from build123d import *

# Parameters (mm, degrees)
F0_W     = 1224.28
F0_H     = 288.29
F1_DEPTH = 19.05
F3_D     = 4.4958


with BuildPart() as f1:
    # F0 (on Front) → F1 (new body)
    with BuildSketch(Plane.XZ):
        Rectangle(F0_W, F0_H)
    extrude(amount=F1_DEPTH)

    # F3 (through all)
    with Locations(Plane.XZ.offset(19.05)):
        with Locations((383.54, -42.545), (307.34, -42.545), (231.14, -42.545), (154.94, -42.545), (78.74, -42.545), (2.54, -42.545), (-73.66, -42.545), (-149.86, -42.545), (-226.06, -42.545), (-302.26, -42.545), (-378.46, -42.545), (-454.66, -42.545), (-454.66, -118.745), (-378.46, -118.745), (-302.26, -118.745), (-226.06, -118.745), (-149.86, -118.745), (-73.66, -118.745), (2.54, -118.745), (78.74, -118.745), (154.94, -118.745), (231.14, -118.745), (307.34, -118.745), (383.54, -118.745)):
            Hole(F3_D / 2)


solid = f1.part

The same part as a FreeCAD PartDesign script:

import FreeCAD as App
import Part
import Sketcher
from FreeCAD import Vector
Q = App.Units.Quantity


def add_polygon(sketch, points):
    """Adds a closed chain of lines whose ends are joined by coincident constraints."""
    first, n = sketch.GeometryCount, len(points)
    for a, b in zip(points, points[1:] + points[:1]):
        sketch.addGeometry(Part.LineSegment(App.Vector(*a, 0), App.Vector(*b, 0)), False)
    for i in range(n):
        sketch.addConstraint(Sketcher.Constraint("Coincident", first + i, 2, first + (i + 1) % n, 1))

doc = App.newDocument("Part")
body = doc.addObject("PartDesign::Body", "Body")

# Sketch on XZ plane
sketch1 = body.newObject("Sketcher::SketchObject", "Sketch")
sketch1.AttachmentSupport = (doc.getObject("XZ_Plane"), [""])
sketch1.MapMode = "FlatFace"
add_polygon(sketch1, [(-612, 144), (-612, -144), (612, -144), (612, 144)])  # lines 0-3
sketch1.addConstraint(Sketcher.Constraint("Vertical", 0))
sketch1.addConstraint(Sketcher.Constraint("Horizontal", 1))
sketch1.addConstraint(Sketcher.Constraint("Vertical", 2))
sketch1.addConstraint(Sketcher.Constraint("Horizontal", 3))
sketch1.addConstraint(Sketcher.Constraint("Symmetric", 0, 2, 2, 2, -1, 1))
sketch1.addConstraint(Sketcher.Constraint("DistanceX", 1, 1, 1, 2, Q("48.2 in")))
sketch1.addConstraint(Sketcher.Constraint("DistanceY", 0, 2, 0, 1, Q("11.35 in")))
pad1 = body.newObject("PartDesign::Pad", "Pad")
pad1.Profile = sketch1
pad1.Length = Q("0.75 in")

# Sketch on XZ plane
sketch2 = body.newObject("Sketcher::SketchObject", "Sketch001")
sketch2.AttachmentSupport = (doc.getObject("XZ_Plane"), [""])
sketch2.MapMode = "FlatFace"
sketch2.AttachmentOffset = App.Placement(Vector(0, 0, 0.75 * 25.4), App.Rotation())
sketch2.addGeometry(Part.Circle(Vector(383.5, -42.5, 0), Vector(0, 0, 1), 2.2), False)
sketch2.addGeometry(Part.Circle(Vector(307.3, -42.5, 0), Vector(0, 0, 1), 2.2), False)
sketch2.addGeometry(Part.Circle(Vector(231.1, -42.5, 0), Vector(0, 0, 1), 2.2), False)
sketch2.addGeometry(Part.Circle(Vector(154.9, -42.5, 0), Vector(0, 0, 1), 2.2), False)
sketch2.addGeometry(Part.Circle(Vector(78.7, -42.5, 0), Vector(0, 0, 1), 2.2), False)
sketch2.addGeometry(Part.Circle(Vector(2.5, -42.5, 0), Vector(0, 0, 1), 2.2), False)
sketch2.addGeometry(Part.Circle(Vector(-73.7, -42.5, 0), Vector(0, 0, 1), 2.2), False)
sketch2.addGeometry(Part.Circle(Vector(-149.9, -42.5, 0), Vector(0, 0, 1), 2.2), False)
sketch2.addGeometry(Part.Circle(Vector(-226.1, -42.5, 0), Vector(0, 0, 1), 2.2), False)
sketch2.addGeometry(Part.Circle(Vector(-302.3, -42.5, 0), Vector(0, 0, 1), 2.2), False)
sketch2.addGeometry(Part.Circle(Vector(-378.5, -42.5, 0), Vector(0, 0, 1), 2.2), False)
sketch2.addGeometry(Part.Circle(Vector(-454.7, -42.5, 0), Vector(0, 0, 1), 2.2), False)
sketch2.addGeometry(Part.Circle(Vector(-454.7, -118.7, 0), Vector(0, 0, 1), 2.2), False)
sketch2.addGeometry(Part.Circle(Vector(-378.5, -118.7, 0), Vector(0, 0, 1), 2.2), False)
sketch2.addGeometry(Part.Circle(Vector(-302.3, -118.7, 0), Vector(0, 0, 1), 2.2), False)
sketch2.addGeometry(Part.Circle(Vector(-226.1, -118.7, 0), Vector(0, 0, 1), 2.2), False)
sketch2.addGeometry(Part.Circle(Vector(-149.9, -118.7, 0), Vector(0, 0, 1), 2.2), False)
sketch2.addGeometry(Part.Circle(Vector(-73.7, -118.7, 0), Vector(0, 0, 1), 2.2), False)
sketch2.addGeometry(Part.Circle(Vector(2.5, -118.7, 0), Vector(0, 0, 1), 2.2), False)
sketch2.addGeometry(Part.Circle(Vector(78.7, -118.7, 0), Vector(0, 0, 1), 2.2), False)
sketch2.addGeometry(Part.Circle(Vector(154.9, -118.7, 0), Vector(0, 0, 1), 2.2), False)
sketch2.addGeometry(Part.Circle(Vector(231.1, -118.7, 0), Vector(0, 0, 1), 2.2), False)
sketch2.addGeometry(Part.Circle(Vector(307.3, -118.7, 0), Vector(0, 0, 1), 2.2), False)
sketch2.addGeometry(Part.Circle(Vector(383.5, -118.7, 0), Vector(0, 0, 1), 2.2), False)
sketch2.addConstraint(Sketcher.Constraint("Equal", 0, 1))
sketch2.addConstraint(Sketcher.Constraint("Equal", 1, 2))
sketch2.addConstraint(Sketcher.Constraint("Equal", 2, 3))
sketch2.addConstraint(Sketcher.Constraint("Equal", 3, 4))
sketch2.addConstraint(Sketcher.Constraint("Equal", 4, 5))
sketch2.addConstraint(Sketcher.Constraint("Equal", 5, 6))
sketch2.addConstraint(Sketcher.Constraint("Equal", 6, 7))
sketch2.addConstraint(Sketcher.Constraint("Equal", 7, 8))
sketch2.addConstraint(Sketcher.Constraint("Equal", 8, 9))
sketch2.addConstraint(Sketcher.Constraint("Equal", 9, 10))
sketch2.addConstraint(Sketcher.Constraint("Equal", 10, 11))
sketch2.addConstraint(Sketcher.Constraint("Equal", 11, 12))
sketch2.addConstraint(Sketcher.Constraint("Equal", 12, 13))
sketch2.addConstraint(Sketcher.Constraint("Equal", 13, 14))
sketch2.addConstraint(Sketcher.Constraint("Equal", 14, 15))
sketch2.addConstraint(Sketcher.Constraint("Equal", 15, 16))
sketch2.addConstraint(Sketcher.Constraint("Equal", 16, 17))
sketch2.addConstraint(Sketcher.Constraint("Equal", 17, 18))
sketch2.addConstraint(Sketcher.Constraint("Equal", 18, 19))
sketch2.addConstraint(Sketcher.Constraint("Equal", 19, 20))
sketch2.addConstraint(Sketcher.Constraint("Equal", 20, 21))
sketch2.addConstraint(Sketcher.Constraint("Equal", 21, 22))
sketch2.addConstraint(Sketcher.Constraint("Equal", 22, 23))
sketch2.addConstraint(Sketcher.Constraint("Horizontal", 0, 3, 1, 3))
sketch2.addConstraint(Sketcher.Constraint("Horizontal", 1, 3, 2, 3))
sketch2.addConstraint(Sketcher.Constraint("Horizontal", 2, 3, 3, 3))
sketch2.addConstraint(Sketcher.Constraint("Horizontal", 3, 3, 4, 3))
sketch2.addConstraint(Sketcher.Constraint("Horizontal", 4, 3, 5, 3))
sketch2.addConstraint(Sketcher.Constraint("Horizontal", 5, 3, 6, 3))
sketch2.addConstraint(Sketcher.Constraint("Horizontal", 6, 3, 7, 3))
sketch2.addConstraint(Sketcher.Constraint("Horizontal", 7, 3, 8, 3))
sketch2.addConstraint(Sketcher.Constraint("Horizontal", 8, 3, 9, 3))
sketch2.addConstraint(Sketcher.Constraint("Horizontal", 9, 3, 10, 3))
sketch2.addConstraint(Sketcher.Constraint("Horizontal", 10, 3, 11, 3))
sketch2.addConstraint(Sketcher.Constraint("Horizontal", 12, 3, 13, 3))
sketch2.addConstraint(Sketcher.Constraint("Horizontal", 13, 3, 14, 3))
sketch2.addConstraint(Sketcher.Constraint("Horizontal", 14, 3, 15, 3))
sketch2.addConstraint(Sketcher.Constraint("Horizontal", 15, 3, 16, 3))
sketch2.addConstraint(Sketcher.Constraint("Horizontal", 16, 3, 17, 3))
sketch2.addConstraint(Sketcher.Constraint("Horizontal", 17, 3, 18, 3))
sketch2.addConstraint(Sketcher.Constraint("Horizontal", 18, 3, 19, 3))
sketch2.addConstraint(Sketcher.Constraint("Horizontal", 19, 3, 20, 3))
sketch2.addConstraint(Sketcher.Constraint("Horizontal", 20, 3, 21, 3))
sketch2.addConstraint(Sketcher.Constraint("Horizontal", 21, 3, 22, 3))
sketch2.addConstraint(Sketcher.Constraint("Horizontal", 22, 3, 23, 3))
sketch2.addConstraint(Sketcher.Constraint("Vertical", 11, 3, 12, 3))
sketch2.addConstraint(Sketcher.Constraint("Vertical", 10, 3, 13, 3))
sketch2.addConstraint(Sketcher.Constraint("Vertical", 9, 3, 14, 3))
sketch2.addConstraint(Sketcher.Constraint("Vertical", 8, 3, 15, 3))
sketch2.addConstraint(Sketcher.Constraint("Vertical", 7, 3, 16, 3))
sketch2.addConstraint(Sketcher.Constraint("Vertical", 6, 3, 17, 3))
sketch2.addConstraint(Sketcher.Constraint("Vertical", 5, 3, 18, 3))
sketch2.addConstraint(Sketcher.Constraint("Vertical", 4, 3, 19, 3))
sketch2.addConstraint(Sketcher.Constraint("Vertical", 3, 3, 20, 3))
sketch2.addConstraint(Sketcher.Constraint("Vertical", 2, 3, 21, 3))
sketch2.addConstraint(Sketcher.Constraint("Vertical", 1, 3, 22, 3))
sketch2.addConstraint(Sketcher.Constraint("Vertical", 0, 3, 23, 3))
sketch2.addConstraint(Sketcher.Constraint("Diameter", 0, Q("0.177 in")))
sketch2.addConstraint(Sketcher.Constraint("DistanceX", 1, 3, 0, 3, Q("3 in")))
sketch2.addConstraint(Sketcher.Constraint("DistanceX", 2, 3, 1, 3, Q("3 in")))
sketch2.addConstraint(Sketcher.Constraint("DistanceX", 3, 3, 2, 3, Q("3 in")))
sketch2.addConstraint(Sketcher.Constraint("DistanceX", 4, 3, 3, 3, Q("3 in")))
sketch2.addConstraint(Sketcher.Constraint("DistanceX", 5, 3, 4, 3, Q("3 in")))
sketch2.addConstraint(Sketcher.Constraint("DistanceX", 6, 3, 5, 3, Q("3 in")))
sketch2.addConstraint(Sketcher.Constraint("DistanceX", 7, 3, 6, 3, Q("3 in")))
sketch2.addConstraint(Sketcher.Constraint("DistanceX", 8, 3, 7, 3, Q("3 in")))
sketch2.addConstraint(Sketcher.Constraint("DistanceX", 9, 3, 8, 3, Q("3 in")))
sketch2.addConstraint(Sketcher.Constraint("DistanceX", 10, 3, 9, 3, Q("3 in")))
sketch2.addConstraint(Sketcher.Constraint("DistanceX", 11, 3, 10, 3, Q("3 in")))
sketch2.addConstraint(Sketcher.Constraint("DistanceY", 12, 3, 11, 3, Q("3 in")))
sketch2.addConstraint(Sketcher.Constraint("DistanceX", -1, 1, 0, 3, Q("15.1 in")))
sketch2.addConstraint(Sketcher.Constraint("DistanceY", 0, 3, -1, 1, Q("1.675 in")))
doc.recompute()
hole = body.newObject("PartDesign::Hole", "Hole")
hole.Profile = sketch2
hole.ThreadType = "None"
hole.Diameter = Q("0.177 in")
hole.DepthType = "ThroughAll"

doc.recompute()
